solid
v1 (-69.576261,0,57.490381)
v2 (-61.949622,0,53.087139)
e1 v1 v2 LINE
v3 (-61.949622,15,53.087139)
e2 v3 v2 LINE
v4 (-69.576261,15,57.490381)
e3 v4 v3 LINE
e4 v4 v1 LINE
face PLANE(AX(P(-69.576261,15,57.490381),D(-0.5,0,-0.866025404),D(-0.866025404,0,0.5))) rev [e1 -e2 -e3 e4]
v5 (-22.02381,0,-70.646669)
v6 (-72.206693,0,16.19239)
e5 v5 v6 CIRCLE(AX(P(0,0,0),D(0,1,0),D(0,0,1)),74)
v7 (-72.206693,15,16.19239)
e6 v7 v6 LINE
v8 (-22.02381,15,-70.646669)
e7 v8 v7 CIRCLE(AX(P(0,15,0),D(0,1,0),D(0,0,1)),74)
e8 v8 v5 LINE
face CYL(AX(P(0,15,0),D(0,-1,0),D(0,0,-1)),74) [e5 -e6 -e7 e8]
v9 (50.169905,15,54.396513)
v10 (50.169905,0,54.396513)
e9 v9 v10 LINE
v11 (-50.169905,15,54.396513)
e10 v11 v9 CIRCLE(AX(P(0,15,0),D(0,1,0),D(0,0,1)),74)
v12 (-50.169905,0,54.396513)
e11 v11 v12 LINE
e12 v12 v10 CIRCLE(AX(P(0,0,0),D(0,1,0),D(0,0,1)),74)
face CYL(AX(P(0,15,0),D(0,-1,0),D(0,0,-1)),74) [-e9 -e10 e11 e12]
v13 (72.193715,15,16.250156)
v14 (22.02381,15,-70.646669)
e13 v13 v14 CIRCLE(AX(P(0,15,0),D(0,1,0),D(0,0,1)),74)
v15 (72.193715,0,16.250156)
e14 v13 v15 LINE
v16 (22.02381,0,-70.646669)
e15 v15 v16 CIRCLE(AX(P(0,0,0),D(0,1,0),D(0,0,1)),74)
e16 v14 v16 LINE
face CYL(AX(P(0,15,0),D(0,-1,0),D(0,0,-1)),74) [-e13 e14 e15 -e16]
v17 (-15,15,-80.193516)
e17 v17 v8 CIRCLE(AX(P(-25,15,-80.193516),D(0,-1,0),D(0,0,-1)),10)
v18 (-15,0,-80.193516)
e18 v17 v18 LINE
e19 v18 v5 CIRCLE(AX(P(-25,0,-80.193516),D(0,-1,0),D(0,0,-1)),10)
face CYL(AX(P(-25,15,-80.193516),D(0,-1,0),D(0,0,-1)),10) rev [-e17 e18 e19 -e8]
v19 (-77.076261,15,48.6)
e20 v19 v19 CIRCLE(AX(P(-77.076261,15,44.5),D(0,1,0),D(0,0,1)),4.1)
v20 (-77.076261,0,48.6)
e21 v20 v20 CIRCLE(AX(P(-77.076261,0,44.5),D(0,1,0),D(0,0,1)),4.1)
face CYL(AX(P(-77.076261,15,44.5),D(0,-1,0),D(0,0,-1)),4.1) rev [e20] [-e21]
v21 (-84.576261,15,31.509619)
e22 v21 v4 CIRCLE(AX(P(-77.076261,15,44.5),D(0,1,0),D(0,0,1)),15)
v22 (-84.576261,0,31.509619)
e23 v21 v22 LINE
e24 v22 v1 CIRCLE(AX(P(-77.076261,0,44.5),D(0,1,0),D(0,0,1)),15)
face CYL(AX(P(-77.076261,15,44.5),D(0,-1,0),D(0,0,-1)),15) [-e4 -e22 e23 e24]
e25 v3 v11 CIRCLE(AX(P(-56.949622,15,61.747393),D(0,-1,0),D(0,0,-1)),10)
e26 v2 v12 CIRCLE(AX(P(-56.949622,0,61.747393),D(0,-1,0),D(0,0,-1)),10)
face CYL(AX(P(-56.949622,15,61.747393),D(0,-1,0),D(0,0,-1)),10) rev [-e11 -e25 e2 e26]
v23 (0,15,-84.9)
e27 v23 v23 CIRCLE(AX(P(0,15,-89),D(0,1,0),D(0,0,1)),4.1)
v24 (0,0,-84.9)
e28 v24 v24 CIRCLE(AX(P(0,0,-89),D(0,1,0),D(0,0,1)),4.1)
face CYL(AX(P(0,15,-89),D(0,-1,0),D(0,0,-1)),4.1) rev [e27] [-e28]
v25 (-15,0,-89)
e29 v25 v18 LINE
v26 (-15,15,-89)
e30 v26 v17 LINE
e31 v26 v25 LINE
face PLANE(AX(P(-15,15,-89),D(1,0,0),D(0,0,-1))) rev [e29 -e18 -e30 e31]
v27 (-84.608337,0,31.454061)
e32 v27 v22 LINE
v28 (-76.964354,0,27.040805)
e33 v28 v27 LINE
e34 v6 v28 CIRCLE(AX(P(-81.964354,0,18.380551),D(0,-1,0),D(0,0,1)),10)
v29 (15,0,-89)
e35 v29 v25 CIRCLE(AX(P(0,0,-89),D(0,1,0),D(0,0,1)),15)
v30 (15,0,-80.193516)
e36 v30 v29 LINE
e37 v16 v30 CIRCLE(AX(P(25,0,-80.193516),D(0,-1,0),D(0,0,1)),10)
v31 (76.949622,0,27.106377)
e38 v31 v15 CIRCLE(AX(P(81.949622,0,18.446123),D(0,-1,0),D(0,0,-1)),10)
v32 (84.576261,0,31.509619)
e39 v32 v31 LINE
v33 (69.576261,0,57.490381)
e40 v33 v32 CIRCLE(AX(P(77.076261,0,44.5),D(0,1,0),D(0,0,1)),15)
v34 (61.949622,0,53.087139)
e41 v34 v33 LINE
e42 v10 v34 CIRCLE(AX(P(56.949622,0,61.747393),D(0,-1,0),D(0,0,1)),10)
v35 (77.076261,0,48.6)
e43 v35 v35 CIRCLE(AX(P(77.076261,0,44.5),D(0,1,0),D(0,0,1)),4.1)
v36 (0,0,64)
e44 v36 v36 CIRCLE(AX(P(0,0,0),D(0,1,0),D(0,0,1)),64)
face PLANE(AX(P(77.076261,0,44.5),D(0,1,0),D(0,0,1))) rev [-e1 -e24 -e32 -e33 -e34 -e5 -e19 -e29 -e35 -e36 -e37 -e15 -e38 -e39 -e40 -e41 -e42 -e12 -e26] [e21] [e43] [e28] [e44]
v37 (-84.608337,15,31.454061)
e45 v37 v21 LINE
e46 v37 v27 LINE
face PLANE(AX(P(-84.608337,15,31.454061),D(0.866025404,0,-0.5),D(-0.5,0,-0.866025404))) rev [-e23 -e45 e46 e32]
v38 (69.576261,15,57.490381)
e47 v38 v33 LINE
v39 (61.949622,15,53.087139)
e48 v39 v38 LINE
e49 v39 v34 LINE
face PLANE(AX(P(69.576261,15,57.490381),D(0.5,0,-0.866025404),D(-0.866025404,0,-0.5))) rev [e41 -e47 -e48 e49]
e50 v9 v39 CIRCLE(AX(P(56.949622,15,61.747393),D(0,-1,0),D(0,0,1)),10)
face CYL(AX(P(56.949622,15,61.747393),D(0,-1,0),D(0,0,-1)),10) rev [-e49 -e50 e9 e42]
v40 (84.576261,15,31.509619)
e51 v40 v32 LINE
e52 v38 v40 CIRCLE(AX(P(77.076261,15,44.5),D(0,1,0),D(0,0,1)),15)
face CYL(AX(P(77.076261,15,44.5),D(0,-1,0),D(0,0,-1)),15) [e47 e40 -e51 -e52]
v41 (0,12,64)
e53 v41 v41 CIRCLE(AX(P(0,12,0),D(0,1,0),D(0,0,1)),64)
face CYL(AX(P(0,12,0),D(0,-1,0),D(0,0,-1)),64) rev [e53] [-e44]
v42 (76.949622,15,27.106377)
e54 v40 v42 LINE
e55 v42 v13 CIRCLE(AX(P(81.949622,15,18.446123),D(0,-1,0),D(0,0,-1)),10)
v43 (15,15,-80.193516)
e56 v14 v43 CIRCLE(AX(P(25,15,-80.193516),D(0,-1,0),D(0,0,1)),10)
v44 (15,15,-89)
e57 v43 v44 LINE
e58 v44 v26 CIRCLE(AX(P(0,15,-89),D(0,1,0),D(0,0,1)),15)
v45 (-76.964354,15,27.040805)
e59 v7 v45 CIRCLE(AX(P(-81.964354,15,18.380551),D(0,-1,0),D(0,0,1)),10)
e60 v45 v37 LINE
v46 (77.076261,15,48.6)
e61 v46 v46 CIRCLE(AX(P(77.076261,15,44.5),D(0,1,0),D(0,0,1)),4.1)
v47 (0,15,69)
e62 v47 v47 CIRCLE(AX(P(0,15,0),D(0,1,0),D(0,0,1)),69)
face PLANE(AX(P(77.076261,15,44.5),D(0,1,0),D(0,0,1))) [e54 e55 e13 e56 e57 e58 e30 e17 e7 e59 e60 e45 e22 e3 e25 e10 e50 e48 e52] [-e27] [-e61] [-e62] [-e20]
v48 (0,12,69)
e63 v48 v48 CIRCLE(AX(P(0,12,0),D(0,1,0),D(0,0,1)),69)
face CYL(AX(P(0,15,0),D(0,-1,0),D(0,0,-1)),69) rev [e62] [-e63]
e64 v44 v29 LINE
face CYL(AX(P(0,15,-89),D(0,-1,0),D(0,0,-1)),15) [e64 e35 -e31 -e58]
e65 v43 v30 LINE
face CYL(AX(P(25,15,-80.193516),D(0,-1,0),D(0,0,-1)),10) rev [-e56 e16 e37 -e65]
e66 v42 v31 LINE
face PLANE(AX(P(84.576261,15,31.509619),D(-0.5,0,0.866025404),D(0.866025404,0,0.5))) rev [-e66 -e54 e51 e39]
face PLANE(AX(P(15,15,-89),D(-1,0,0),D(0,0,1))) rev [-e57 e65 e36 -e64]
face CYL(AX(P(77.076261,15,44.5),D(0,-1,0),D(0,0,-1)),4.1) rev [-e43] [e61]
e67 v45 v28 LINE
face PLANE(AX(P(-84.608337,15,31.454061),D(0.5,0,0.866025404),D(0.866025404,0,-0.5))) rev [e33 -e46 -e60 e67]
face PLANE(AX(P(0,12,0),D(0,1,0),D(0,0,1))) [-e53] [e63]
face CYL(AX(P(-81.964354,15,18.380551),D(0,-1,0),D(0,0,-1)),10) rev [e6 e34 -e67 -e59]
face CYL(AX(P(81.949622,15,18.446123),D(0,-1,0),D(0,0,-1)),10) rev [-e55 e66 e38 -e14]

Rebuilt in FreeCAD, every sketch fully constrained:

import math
import FreeCAD as App
import Part
import Sketcher
Q = App.Units.Quantity

doc = App.newDocument("Part")
params = doc.addObject("Spreadsheet::Sheet", "Params")
for row, (alias, value) in enumerate([
    ("sketch1_diameter", "138 mm"),
    ("sketch1_radius", "10 mm"),
    ("sketch1_radius2", "74 mm"),
    ("sketch1_radius3", "15 mm"),
    ("sketch1_diameter2", "8.2 mm"),
    ("pad1_length", "15 mm"),
    ("sketch2_diameter", "138 mm"),
    ("sketch2_diameter2", "128 mm"),
    ("pad2_length", "12 mm"),
], start=1):
    params.set(f"A{row}", alias)
    params.set(f"B{row}", "=" + value)
    params.setAlias(f"B{row}", alias)

body = doc.addObject("PartDesign::Body", "Body")

sketch1 = body.newObject("Sketcher::SketchObject", "Sketch")
sketch1.AttachmentSupport = (doc.getObject("XZ_Plane"), [""])
sketch1.MapMode = "FlatFace"
sketch1.addGeometry([
    Part.LineSegment(App.Vector(84.58, 31.51, 0), App.Vector(76.95, 27.11, 0)),
    Part.ArcOfCircle(Part.Circle(App.Vector(81.95, 18.45, 0), App.Vector(0, 0, 1), 10), math.radians(120), math.radians(193)),
    Part.ArcOfCircle(Part.Circle(App.Vector(0, 0, 0), App.Vector(0, 0, 1), 74), math.radians(-73), math.radians(13)),
    Part.ArcOfCircle(Part.Circle(App.Vector(25, -80.19, 0), App.Vector(0, 0, 1), 10), math.radians(107), math.radians(180)),
    Part.LineSegment(App.Vector(15, -80.19, 0), App.Vector(15, -89, 0)),
    Part.ArcOfCircle(Part.Circle(App.Vector(0, -89, 0), App.Vector(0, 0, 1), 15), math.radians(180), math.radians(360)),
    Part.LineSegment(App.Vector(-15, -89, 0), App.Vector(-15, -80.19, 0)),
    Part.ArcOfCircle(Part.Circle(App.Vector(-25, -80.19, 0), App.Vector(0, 0, 1), 10), math.radians(0), math.radians(73)),
    Part.ArcOfCircle(Part.Circle(App.Vector(0, 0, 0), App.Vector(0, 0, 1), 74), math.radians(167), math.radians(253)),
    Part.ArcOfCircle(Part.Circle(App.Vector(-81.96, 18.38, 0), App.Vector(0, 0, 1), 10), math.radians(-13), math.radians(60)),
    Part.LineSegment(App.Vector(-76.96, 27.04, 0), App.Vector(-84.61, 31.45, 0)),
    Part.LineSegment(App.Vector(-84.61, 31.45, 0), App.Vector(-84.58, 31.51, 0)),
    Part.ArcOfCircle(Part.Circle(App.Vector(-77.08, 44.5, 0), App.Vector(0, 0, 1), 15), math.radians(60), math.radians(240)),
    Part.LineSegment(App.Vector(-69.58, 57.49, 0), App.Vector(-61.95, 53.09, 0)),
    Part.ArcOfCircle(Part.Circle(App.Vector(-56.95, 61.75, 0), App.Vector(0, 0, 1), 10), math.radians(-120), math.radians(-47)),
    Part.ArcOfCircle(Part.Circle(App.Vector(0, 0, 0), App.Vector(0, 0, 1), 74), math.radians(47), math.radians(133)),
    Part.ArcOfCircle(Part.Circle(App.Vector(56.95, 61.75, 0), App.Vector(0, 0, 1), 10), math.radians(-133), math.radians(-60)),
    Part.LineSegment(App.Vector(61.95, 53.09, 0), App.Vector(69.58, 57.49, 0)),
    Part.ArcOfCircle(Part.Circle(App.Vector(77.08, 44.5, 0), App.Vector(0, 0, 1), 15), math.radians(-60), math.radians(120)),
    Part.Circle(App.Vector(-77.08, 44.5, 0), App.Vector(0, 0, 1), 4.1),
    Part.Circle(App.Vector(77.08, 44.5, 0), App.Vector(0, 0, 1), 4.1),
    Part.Circle(App.Vector(0, 0, 0), App.Vector(0, 0, 1), 69),
    Part.Circle(App.Vector(0, -89, 0), App.Vector(0, 0, 1), 4.1),
], False)
sketch1.addConstraint([
    Sketcher.Constraint("Tangent", 0, 2, 1, 1),
    Sketcher.Constraint("Tangent", 1, 2, 2, 2),
    Sketcher.Constraint("Tangent", 2, 1, 3, 1),
    Sketcher.Constraint("Tangent", 3, 2, 4, 1),
    Sketcher.Constraint("Tangent", 4, 2, 5, 2),
    Sketcher.Constraint("Tangent", 5, 1, 6, 1),
    Sketcher.Constraint("Tangent", 6, 2, 7, 1),
    Sketcher.Constraint("Tangent", 7, 2, 8, 2),
    Sketcher.Constraint("Tangent", 8, 1, 9, 1),
    Sketcher.Constraint("Tangent", 9, 2, 10, 1),
    Sketcher.Constraint("Coincident", 10, 2, 11, 1),
    Sketcher.Constraint("Coincident", 11, 2, 12, 2),
    Sketcher.Constraint("Tangent", 12, 1, 13, 1),
    Sketcher.Constraint("Tangent", 13, 2, 14, 1),
    Sketcher.Constraint("Tangent", 14, 2, 15, 2),
    Sketcher.Constraint("Tangent", 15, 1, 16, 1),
    Sketcher.Constraint("Tangent", 16, 2, 17, 1),
    Sketcher.Constraint("Tangent", 17, 2, 18, 2),
    Sketcher.Constraint("Tangent", 18, 1, 0, 1),
    Sketcher.Constraint("Vertical", 4),
    Sketcher.Constraint("Vertical", 6),
    Sketcher.Constraint("Coincident", 2, 3, -1, 1),
    Sketcher.Constraint("Coincident", 8, 3, -1, 1),
    Sketcher.Constraint("Coincident", 15, 3, -1, 1),
    Sketcher.Constraint("Coincident", 21, 3, -1, 1),
    Sketcher.Constraint("Coincident", 19, 3, 12, 3),
    Sketcher.Constraint("Coincident", 20, 3, 18, 3),
    Sketcher.Constraint("Coincident", 22, 3, 5, 3),
    Sketcher.Constraint("Equal", 1, 3),
    Sketcher.Constraint("Equal", 3, 7),
    Sketcher.Constraint("Equal", 2, 8),
    Sketcher.Constraint("Equal", 7, 9),
    Sketcher.Constraint("Equal", 5, 12),
    Sketcher.Constraint("Equal", 9, 14),
    Sketcher.Constraint("Equal", 8, 15),
    Sketcher.Constraint("Equal", 14, 16),
    Sketcher.Constraint("Equal", 12, 18),
    Sketcher.Constraint("Equal", 19, 20),
    Sketcher.Constraint("Equal", 20, 22),
    Sketcher.Constraint("Symmetric", 12, 3, 18, 3, -2),
    Sketcher.Constraint("PointOnObject", 5, 3, -2),
    Sketcher.Constraint("Perpendicular", 10, 11),
    Sketcher.Constraint("Perpendicular", 11, 13),
    Sketcher.Constraint("Parallel", 0, 17),
    Sketcher.Constraint("Horizontal", 14, 3, 16, 3),
    Sketcher.Constraint("Horizontal", 11, 2, 18, 1),
    Sketcher.Constraint("Equal", 0, 13),
    Sketcher.Constraint("Diameter", 21, 138.0),
    Sketcher.Constraint("Radius", 1, 10.0),
    Sketcher.Constraint("Radius", 2, 74.0),
    Sketcher.Constraint("Radius", 5, 15.0),
    Sketcher.Constraint("Diameter", 19, 8.2),
    Sketcher.Constraint("Angle", 0, Q("-150 deg")),
    Sketcher.Constraint("DistanceY", 5, 3, -1, 1, 89.0),
    Sketcher.Constraint("DistanceY", -1, 1, 12, 3, 44.5),
    Sketcher.Constraint("Distance", 10, 8.826512),
])
sketch1.setExpression("Constraints[47]", "Params.sketch1_diameter")
sketch1.setExpression("Constraints[48]", "Params.sketch1_radius")
sketch1.setExpression("Constraints[49]", "Params.sketch1_radius2")
sketch1.setExpression("Constraints[50]", "Params.sketch1_radius3")
sketch1.setExpression("Constraints[51]", "Params.sketch1_diameter2")
pad1 = body.newObject("PartDesign::Pad", "Pad")
pad1.Profile = sketch1
pad1.setExpression("Length", "Params.pad1_length")
pad1.Reversed = True

sketch2 = body.newObject("Sketcher::SketchObject", "Sketch001")
sketch2.AttachmentSupport = (doc.getObject("XZ_Plane"), [""])
sketch2.MapMode = "FlatFace"
sketch2.addGeometry([
    Part.Circle(App.Vector(0, 0, 0), App.Vector(0, 0, 1), 69),
    Part.Circle(App.Vector(0, 0, 0), App.Vector(0, 0, 1), 64),
], False)
sketch2.addConstraint([
    Sketcher.Constraint("Coincident", 0, 3, -1, 1),
    Sketcher.Constraint("Coincident", 1, 3, -1, 1),
    Sketcher.Constraint("Diameter", 0, 138.0),
    Sketcher.Constraint("Diameter", 1, 128.0),
])
sketch2.setExpression("Constraints[2]", "Params.sketch2_diameter")
sketch2.setExpression("Constraints[3]", "Params.sketch2_diameter2")
pad2 = body.newObject("PartDesign::Pad", "Pad001")
pad2.Profile = sketch2
pad2.setExpression("Length", "Params.pad2_length")
pad2.Reversed = True

doc.recompute()
